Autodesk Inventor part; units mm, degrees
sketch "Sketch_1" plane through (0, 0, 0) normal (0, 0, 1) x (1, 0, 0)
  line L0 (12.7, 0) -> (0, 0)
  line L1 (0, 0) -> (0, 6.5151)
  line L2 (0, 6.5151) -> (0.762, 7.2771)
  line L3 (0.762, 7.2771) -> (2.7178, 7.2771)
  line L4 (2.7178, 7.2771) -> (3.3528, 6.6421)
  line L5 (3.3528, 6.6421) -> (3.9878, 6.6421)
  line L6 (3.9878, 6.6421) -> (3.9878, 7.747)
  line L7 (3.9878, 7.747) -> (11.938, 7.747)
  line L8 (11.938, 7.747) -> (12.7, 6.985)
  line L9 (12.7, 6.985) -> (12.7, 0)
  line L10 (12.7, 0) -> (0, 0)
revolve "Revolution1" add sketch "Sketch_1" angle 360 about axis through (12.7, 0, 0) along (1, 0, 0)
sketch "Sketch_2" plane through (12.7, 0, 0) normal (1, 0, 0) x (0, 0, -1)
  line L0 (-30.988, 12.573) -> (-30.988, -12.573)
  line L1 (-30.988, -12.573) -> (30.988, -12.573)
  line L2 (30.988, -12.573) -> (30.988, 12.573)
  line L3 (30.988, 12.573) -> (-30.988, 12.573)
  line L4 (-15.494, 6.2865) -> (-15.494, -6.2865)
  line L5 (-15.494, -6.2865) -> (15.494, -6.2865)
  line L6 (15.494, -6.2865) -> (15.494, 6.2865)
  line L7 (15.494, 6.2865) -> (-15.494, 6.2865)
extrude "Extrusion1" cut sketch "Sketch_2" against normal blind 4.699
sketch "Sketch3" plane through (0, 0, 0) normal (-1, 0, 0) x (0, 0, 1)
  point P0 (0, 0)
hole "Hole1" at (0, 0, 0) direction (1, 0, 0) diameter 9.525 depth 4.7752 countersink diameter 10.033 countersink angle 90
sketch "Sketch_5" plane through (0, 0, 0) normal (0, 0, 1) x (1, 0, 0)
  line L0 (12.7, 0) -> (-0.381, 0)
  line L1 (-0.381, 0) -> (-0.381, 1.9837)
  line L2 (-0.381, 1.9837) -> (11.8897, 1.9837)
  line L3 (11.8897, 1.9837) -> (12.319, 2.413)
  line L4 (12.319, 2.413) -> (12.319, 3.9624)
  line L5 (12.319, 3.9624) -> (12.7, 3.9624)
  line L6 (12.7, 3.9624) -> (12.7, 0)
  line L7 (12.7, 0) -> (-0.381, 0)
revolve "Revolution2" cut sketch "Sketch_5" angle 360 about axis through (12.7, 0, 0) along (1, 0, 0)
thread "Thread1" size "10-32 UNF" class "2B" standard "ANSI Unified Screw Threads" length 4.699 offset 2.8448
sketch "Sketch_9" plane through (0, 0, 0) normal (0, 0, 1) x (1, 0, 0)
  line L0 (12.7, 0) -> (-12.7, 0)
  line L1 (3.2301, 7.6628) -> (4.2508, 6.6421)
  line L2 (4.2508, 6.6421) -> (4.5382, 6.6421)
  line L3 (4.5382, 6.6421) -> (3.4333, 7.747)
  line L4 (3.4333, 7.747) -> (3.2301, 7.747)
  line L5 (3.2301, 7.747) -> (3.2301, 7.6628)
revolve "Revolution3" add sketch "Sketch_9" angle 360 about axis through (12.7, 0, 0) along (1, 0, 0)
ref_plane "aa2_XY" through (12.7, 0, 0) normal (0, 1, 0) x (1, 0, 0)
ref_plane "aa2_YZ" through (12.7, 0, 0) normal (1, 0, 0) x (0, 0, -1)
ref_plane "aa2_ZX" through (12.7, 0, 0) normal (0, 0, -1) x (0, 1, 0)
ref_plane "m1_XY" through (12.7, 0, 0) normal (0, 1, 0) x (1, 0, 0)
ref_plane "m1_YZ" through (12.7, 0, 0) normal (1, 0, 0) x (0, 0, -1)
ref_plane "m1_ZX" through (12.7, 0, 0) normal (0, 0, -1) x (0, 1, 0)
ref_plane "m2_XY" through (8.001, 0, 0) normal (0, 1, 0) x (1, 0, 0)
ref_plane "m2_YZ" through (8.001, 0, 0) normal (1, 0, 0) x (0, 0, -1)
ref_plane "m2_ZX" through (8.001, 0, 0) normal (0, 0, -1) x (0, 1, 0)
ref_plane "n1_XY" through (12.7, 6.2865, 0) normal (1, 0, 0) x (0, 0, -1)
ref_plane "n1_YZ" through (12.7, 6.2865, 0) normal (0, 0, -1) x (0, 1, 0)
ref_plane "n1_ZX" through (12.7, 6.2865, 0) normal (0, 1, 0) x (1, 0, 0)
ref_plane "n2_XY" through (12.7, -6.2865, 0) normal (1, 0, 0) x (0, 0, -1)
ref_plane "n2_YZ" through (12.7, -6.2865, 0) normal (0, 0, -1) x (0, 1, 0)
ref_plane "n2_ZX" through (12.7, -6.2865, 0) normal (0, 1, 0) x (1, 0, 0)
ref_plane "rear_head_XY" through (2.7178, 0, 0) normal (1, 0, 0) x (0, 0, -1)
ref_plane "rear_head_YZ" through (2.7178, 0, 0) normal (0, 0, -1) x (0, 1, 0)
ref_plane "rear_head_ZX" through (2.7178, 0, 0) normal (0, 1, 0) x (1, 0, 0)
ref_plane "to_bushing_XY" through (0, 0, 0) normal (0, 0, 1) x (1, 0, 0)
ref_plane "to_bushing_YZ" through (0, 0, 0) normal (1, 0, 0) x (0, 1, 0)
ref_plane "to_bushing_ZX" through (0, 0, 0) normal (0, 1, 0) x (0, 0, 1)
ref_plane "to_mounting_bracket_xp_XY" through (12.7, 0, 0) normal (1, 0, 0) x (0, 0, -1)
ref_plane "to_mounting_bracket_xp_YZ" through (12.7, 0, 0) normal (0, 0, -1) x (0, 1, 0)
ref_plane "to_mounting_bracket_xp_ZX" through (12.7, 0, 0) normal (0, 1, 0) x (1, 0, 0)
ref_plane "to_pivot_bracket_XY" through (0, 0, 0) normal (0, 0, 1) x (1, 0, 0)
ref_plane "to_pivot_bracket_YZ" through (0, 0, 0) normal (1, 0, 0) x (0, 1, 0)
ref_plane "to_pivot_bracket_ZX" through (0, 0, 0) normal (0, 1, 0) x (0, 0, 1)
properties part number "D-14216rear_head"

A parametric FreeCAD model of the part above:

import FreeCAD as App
import Part
import Sketcher
from FreeCAD import Vector
Q = App.Units.Quantity

doc = App.newDocument("Part")
body = doc.addObject("PartDesign::Body", "Body")

# Sketch on XY plane
sketch1 = body.newObject("Sketcher::SketchObject", "Sketch")
sketch1.AttachmentSupport = (doc.getObject("XY_Plane"), [""])
sketch1.MapMode = "FlatFace"
sketch1.addGeometry([
    Part.LineSegment(Vector(0, 0, 0), Vector(12.7, 0, 0)),  # 0
    Part.LineSegment(Vector(12.7, 0, 0), Vector(12.7, 7, 0)),  # 1
    Part.LineSegment(Vector(12.7, 7, 0), Vector(11.9, 7.7, 0)),  # 2
    Part.LineSegment(Vector(11.9, 7.7, 0), Vector(4, 7.7, 0)),  # 3
    Part.LineSegment(Vector(4, 7.7, 0), Vector(4, 6.6, 0)),  # 4
    Part.LineSegment(Vector(4, 6.6, 0), Vector(3.4, 6.6, 0)),  # 5
    Part.LineSegment(Vector(3.4, 6.6, 0), Vector(2.7, 7.3, 0)),  # 6
    Part.LineSegment(Vector(2.7, 7.3, 0), Vector(0.8, 7.3, 0)),  # 7
    Part.LineSegment(Vector(0.8, 7.3, 0), Vector(0, 6.5, 0)),  # 8
    Part.LineSegment(Vector(0, 6.5, 0), Vector(0, 0, 0)),  # 9
], False)
sketch1.addConstraint([
    Sketcher.Constraint("Coincident", 0, 2, 1, 1),
    Sketcher.Constraint("Coincident", 1, 2, 2, 1),
    Sketcher.Constraint("Coincident", 2, 2, 3, 1),
    Sketcher.Constraint("Coincident", 3, 2, 4, 1),
    Sketcher.Constraint("Coincident", 4, 2, 5, 1),
    Sketcher.Constraint("Coincident", 5, 2, 6, 1),
    Sketcher.Constraint("Coincident", 6, 2, 7, 1),
    Sketcher.Constraint("Coincident", 7, 2, 8, 1),
    Sketcher.Constraint("Coincident", 8, 2, 9, 1),
    Sketcher.Constraint("Coincident", 9, 2, 0, 1),
    Sketcher.Constraint("Horizontal", 0),
    Sketcher.Constraint("Vertical", 1),
    Sketcher.Constraint("Horizontal", 3),
    Sketcher.Constraint("Vertical", 4),
    Sketcher.Constraint("Horizontal", 5),
    Sketcher.Constraint("Horizontal", 7),
    Sketcher.Constraint("Vertical", 9),
    Sketcher.Constraint("Coincident", 9, 2, -1, 1),
    Sketcher.Constraint("Parallel", 2, 6),
    Sketcher.Constraint("Perpendicular", 6, 8),
    Sketcher.Constraint("Equal", 2, 8),
    Sketcher.Constraint("DistanceX", 0, 1, 0, 2, Q("0.5 in")),
    Sketcher.Constraint("Angle", 2, Q("135 deg")),
    Sketcher.Constraint("DistanceX", 3, 2, 3, 1, Q("0.313 in")),
    Sketcher.Constraint("DistanceX", 5, 2, 5, 1, Q("0.025 in")),
    Sketcher.Constraint("DistanceX", 7, 2, 7, 1, Q("0.077 in")),
    Sketcher.Constraint("DistanceY", 1, 1, 1, 2, Q("0.275 in")),
    Sketcher.Constraint("DistanceX", -1, 1, 2, 2, Q("0.47 in")),
    Sketcher.Constraint("DistanceY", 4, 2, 4, 1, Q("0.0435 in")),
])
revolution = body.newObject("PartDesign::Revolution", "Revolution")
revolution.Profile = sketch1
revolution.ReferenceAxis = (sketch1, ["H_Axis"])
revolution.Angle = 360

# Sketch on YZ plane
sketch2 = body.newObject("Sketcher::SketchObject", "Sketch001")
sketch2.AttachmentSupport = (doc.getObject("YZ_Plane"), [""])
sketch2.MapMode = "FlatFace"
sketch2.AttachmentOffset = App.Placement(Vector(0, 0, 0.5 * 25.4), App.Rotation())
sketch2.addGeometry([
    Part.LineSegment(Vector(13, -31, 0), Vector(13, 31, 0)),  # 0
    Part.LineSegment(Vector(13, 31, 0), Vector(-13, 31, 0)),  # 1
    Part.LineSegment(Vector(-13, 31, 0), Vector(-13, -31, 0)),  # 2
    Part.LineSegment(Vector(-13, -31, 0), Vector(13, -31, 0)),  # 3
    Part.LineSegment(Vector(-6, 15, 0), Vector(6, 15, 0)),  # 4
    Part.LineSegment(Vector(6, 15, 0), Vector(6, -15, 0)),  # 5
    Part.LineSegment(Vector(6, -15, 0), Vector(-6, -15, 0)),  # 6
    Part.LineSegment(Vector(-6, -15, 0), Vector(-6, 15, 0)),  # 7
], False)
sketch2.addConstraint([
    Sketcher.Constraint("Coincident", 0, 2, 1, 1),
    Sketcher.Constraint("Coincident", 1, 2, 2, 1),
    Sketcher.Constraint("Coincident", 2, 2, 3, 1),
    Sketcher.Constraint("Coincident", 3, 2, 0, 1),
    Sketcher.Constraint("Coincident", 4, 2, 5, 1),
    Sketcher.Constraint("Coincident", 5, 2, 6, 1),
    Sketcher.Constraint("Coincident", 6, 2, 7, 1),
    Sketcher.Constraint("Coincident", 7, 2, 4, 1),
    Sketcher.Constraint("Vertical", 0),
    Sketcher.Constraint("Horizontal", 1),
    Sketcher.Constraint("Vertical", 2),
    Sketcher.Constraint("Horizontal", 3),
    Sketcher.Constraint("Horizontal", 4),
    Sketcher.Constraint("Vertical", 5),
    Sketcher.Constraint("Horizontal", 6),
    Sketcher.Constraint("Vertical", 7),
    Sketcher.Constraint("Symmetric", 0, 2, 2, 2, -1, 1),
    Sketcher.Constraint("Symmetric", 4, 2, 6, 2, -1, 1),
    Sketcher.Constraint("DistanceX", 1, 2, 1, 1, Q("0.99 in")),
    Sketcher.Constraint("DistanceY", 0, 1, 0, 2, Q("2.44 in")),
    Sketcher.Constraint("DistanceY", 5, 2, 5, 1, Q("1.22 in")),
    Sketcher.Constraint("DistanceX", 4, 1, 4, 2, Q("0.495 in")),
])
pocket1 = body.newObject("PartDesign::Pocket", "Pocket")
pocket1.Profile = sketch2
pocket1.Length = Q("0.185 in")

# Sketch on YZ plane
sketch3 = body.newObject("Sketcher::SketchObject", "Sketch002")
sketch3.AttachmentSupport = (doc.getObject("YZ_Plane"), [""])
sketch3.MapMode = "FlatFace"
sketch3.addGeometry(Part.Circle(Vector(0, 0, 0), Vector(0, 0, 1), 4.8), False)
sketch3.addConstraint([
    Sketcher.Constraint("Coincident", 0, 3, -1, 1),
    Sketcher.Constraint("Diameter", 0, Q("0.375 in")),
])
doc.recompute()
hole = body.newObject("PartDesign::Hole", "Hole")
hole.Profile = sketch3
hole.ThreadType = "None"
hole.Diameter = Q("0.375 in")
hole.DepthType = "Dimension"
hole.Depth = Q("0.188 in")
hole.DrillPoint = "Flat"
hole.HoleCutType = "Countersink"
hole.HoleCutDiameter = Q("0.395 in")
hole.HoleCutCountersinkAngle = 90
hole.Reversed = True

# Sketch on XY plane
sketch4 = body.newObject("Sketcher::SketchObject", "Sketch003")
sketch4.AttachmentSupport = (doc.getObject("XY_Plane"), [""])
sketch4.MapMode = "FlatFace"
sketch4.addGeometry([
    Part.LineSegment(Vector(-0.38, 0, 0), Vector(12.7, 0, 0)),  # 0
    Part.LineSegment(Vector(12.7, 0, 0), Vector(12.7, 3.96, 0)),  # 1
    Part.LineSegment(Vector(12.7, 3.96, 0), Vector(12.32, 3.96, 0)),  # 2
    Part.LineSegment(Vector(12.32, 3.96, 0), Vector(12.32, 2.41, 0)),  # 3
    Part.LineSegment(Vector(12.32, 2.41, 0), Vector(11.89, 1.98, 0)),  # 4
    Part.LineSegment(Vector(11.89, 1.98, 0), Vector(-0.38, 1.98, 0)),  # 5
    Part.LineSegment(Vector(-0.38, 1.98, 0), Vector(-0.38, 0, 0)),  # 6
], False)
sketch4.addConstraint([
    Sketcher.Constraint("Coincident", 0, 2, 1, 1),
    Sketcher.Constraint("Coincident", 1, 2, 2, 1),
    Sketcher.Constraint("Coincident", 2, 2, 3, 1),
    Sketcher.Constraint("Coincident", 3, 2, 4, 1),
    Sketcher.Constraint("Coincident", 4, 2, 5, 1),
    Sketcher.Constraint("Coincident", 5, 2, 6, 1),
    Sketcher.Constraint("Coincident", 6, 2, 0, 1),
    Sketcher.Constraint("Horizontal", 0),
    Sketcher.Constraint("Vertical", 1),
    Sketcher.Constraint("Horizontal", 2),
    Sketcher.Constraint("Vertical", 3),
    Sketcher.Constraint("Horizontal", 5),
    Sketcher.Constraint("Vertical", 6),
    Sketcher.Constraint("PointOnObject", 0, 2, -1),
    Sketcher.Constraint("Angle", 4, Q("-135 deg")),
    Sketcher.Constraint("DistanceX", -1, 1, 0, 2, Q("0.5 in")),
    Sketcher.Constraint("DistanceX", 5, 2, 3, 2, Q("0.5 in")),
    Sketcher.Constraint("DistanceX", 0, 1, 0, 2, Q("0.515 in")),
    Sketcher.Constraint("DistanceY", 1, 1, 1, 2, Q("0.156 in")),
    Sketcher.Constraint("DistanceY", 3, 2, 3, 1, Q("0.061 in")),
    Sketcher.Constraint("DistanceX", 5, 2, 5, 1, Q("0.4831 in")),
])
groove = body.newObject("PartDesign::Groove", "Groove")
groove.Profile = sketch4
groove.ReferenceAxis = (sketch4, ["H_Axis"])
groove.Angle = 360

# Sketch on XY plane
sketch5 = body.newObject("Sketcher::SketchObject", "Sketch004")
sketch5.AttachmentSupport = (doc.getObject("XY_Plane"), [""])
sketch5.MapMode = "FlatFace"
sketch5.addGeometry([
    Part.LineSegment(Vector(3.23, 7.75, 0), Vector(3.23, 7.66, 0)),  # 0
    Part.LineSegment(Vector(3.23, 7.66, 0), Vector(4.25, 6.64, 0)),  # 1
    Part.LineSegment(Vector(4.25, 6.64, 0), Vector(4.54, 6.64, 0)),  # 2
    Part.LineSegment(Vector(4.54, 6.64, 0), Vector(3.43, 7.75, 0)),  # 3
    Part.LineSegment(Vector(3.43, 7.75, 0), Vector(3.23, 7.75, 0)),  # 4
], False)
sketch5.addConstraint([
    Sketcher.Constraint("Coincident", 0, 2, 1, 1),
    Sketcher.Constraint("Coincident", 1, 2, 2, 1),
    Sketcher.Constraint("Coincident", 2, 2, 3, 1),
    Sketcher.Constraint("Coincident", 3, 2, 4, 1),
    Sketcher.Constraint("Coincident", 4, 2, 0, 1),
    Sketcher.Constraint("Vertical", 0),
    Sketcher.Constraint("Horizontal", 2),
    Sketcher.Constraint("Horizontal", 4),
    Sketcher.Constraint("Parallel", 1, 3),
    Sketcher.Constraint("Angle", 1, Q("-45 deg")),
    Sketcher.Constraint("DistanceX", 4, 2, 4, 1, Q("0.008 in")),
    Sketcher.Constraint("DistanceY", -1, 1, 3, 2, Q("0.305 in")),
    Sketcher.Constraint("DistanceX", 2, 1, 2, 2, 0.2874),
    Sketcher.Constraint("DistanceY", -1, 1, 1, 2, Q("0.2615 in")),
    Sketcher.Constraint("DistanceX", -1, 1, 0, 2, 3.23),
])
revolution2 = body.newObject("PartDesign::Revolution", "Revolution001")
revolution2.Profile = sketch5
revolution2.ReferenceAxis = (sketch5, ["H_Axis"])
revolution2.Angle = 360

doc.recompute()
